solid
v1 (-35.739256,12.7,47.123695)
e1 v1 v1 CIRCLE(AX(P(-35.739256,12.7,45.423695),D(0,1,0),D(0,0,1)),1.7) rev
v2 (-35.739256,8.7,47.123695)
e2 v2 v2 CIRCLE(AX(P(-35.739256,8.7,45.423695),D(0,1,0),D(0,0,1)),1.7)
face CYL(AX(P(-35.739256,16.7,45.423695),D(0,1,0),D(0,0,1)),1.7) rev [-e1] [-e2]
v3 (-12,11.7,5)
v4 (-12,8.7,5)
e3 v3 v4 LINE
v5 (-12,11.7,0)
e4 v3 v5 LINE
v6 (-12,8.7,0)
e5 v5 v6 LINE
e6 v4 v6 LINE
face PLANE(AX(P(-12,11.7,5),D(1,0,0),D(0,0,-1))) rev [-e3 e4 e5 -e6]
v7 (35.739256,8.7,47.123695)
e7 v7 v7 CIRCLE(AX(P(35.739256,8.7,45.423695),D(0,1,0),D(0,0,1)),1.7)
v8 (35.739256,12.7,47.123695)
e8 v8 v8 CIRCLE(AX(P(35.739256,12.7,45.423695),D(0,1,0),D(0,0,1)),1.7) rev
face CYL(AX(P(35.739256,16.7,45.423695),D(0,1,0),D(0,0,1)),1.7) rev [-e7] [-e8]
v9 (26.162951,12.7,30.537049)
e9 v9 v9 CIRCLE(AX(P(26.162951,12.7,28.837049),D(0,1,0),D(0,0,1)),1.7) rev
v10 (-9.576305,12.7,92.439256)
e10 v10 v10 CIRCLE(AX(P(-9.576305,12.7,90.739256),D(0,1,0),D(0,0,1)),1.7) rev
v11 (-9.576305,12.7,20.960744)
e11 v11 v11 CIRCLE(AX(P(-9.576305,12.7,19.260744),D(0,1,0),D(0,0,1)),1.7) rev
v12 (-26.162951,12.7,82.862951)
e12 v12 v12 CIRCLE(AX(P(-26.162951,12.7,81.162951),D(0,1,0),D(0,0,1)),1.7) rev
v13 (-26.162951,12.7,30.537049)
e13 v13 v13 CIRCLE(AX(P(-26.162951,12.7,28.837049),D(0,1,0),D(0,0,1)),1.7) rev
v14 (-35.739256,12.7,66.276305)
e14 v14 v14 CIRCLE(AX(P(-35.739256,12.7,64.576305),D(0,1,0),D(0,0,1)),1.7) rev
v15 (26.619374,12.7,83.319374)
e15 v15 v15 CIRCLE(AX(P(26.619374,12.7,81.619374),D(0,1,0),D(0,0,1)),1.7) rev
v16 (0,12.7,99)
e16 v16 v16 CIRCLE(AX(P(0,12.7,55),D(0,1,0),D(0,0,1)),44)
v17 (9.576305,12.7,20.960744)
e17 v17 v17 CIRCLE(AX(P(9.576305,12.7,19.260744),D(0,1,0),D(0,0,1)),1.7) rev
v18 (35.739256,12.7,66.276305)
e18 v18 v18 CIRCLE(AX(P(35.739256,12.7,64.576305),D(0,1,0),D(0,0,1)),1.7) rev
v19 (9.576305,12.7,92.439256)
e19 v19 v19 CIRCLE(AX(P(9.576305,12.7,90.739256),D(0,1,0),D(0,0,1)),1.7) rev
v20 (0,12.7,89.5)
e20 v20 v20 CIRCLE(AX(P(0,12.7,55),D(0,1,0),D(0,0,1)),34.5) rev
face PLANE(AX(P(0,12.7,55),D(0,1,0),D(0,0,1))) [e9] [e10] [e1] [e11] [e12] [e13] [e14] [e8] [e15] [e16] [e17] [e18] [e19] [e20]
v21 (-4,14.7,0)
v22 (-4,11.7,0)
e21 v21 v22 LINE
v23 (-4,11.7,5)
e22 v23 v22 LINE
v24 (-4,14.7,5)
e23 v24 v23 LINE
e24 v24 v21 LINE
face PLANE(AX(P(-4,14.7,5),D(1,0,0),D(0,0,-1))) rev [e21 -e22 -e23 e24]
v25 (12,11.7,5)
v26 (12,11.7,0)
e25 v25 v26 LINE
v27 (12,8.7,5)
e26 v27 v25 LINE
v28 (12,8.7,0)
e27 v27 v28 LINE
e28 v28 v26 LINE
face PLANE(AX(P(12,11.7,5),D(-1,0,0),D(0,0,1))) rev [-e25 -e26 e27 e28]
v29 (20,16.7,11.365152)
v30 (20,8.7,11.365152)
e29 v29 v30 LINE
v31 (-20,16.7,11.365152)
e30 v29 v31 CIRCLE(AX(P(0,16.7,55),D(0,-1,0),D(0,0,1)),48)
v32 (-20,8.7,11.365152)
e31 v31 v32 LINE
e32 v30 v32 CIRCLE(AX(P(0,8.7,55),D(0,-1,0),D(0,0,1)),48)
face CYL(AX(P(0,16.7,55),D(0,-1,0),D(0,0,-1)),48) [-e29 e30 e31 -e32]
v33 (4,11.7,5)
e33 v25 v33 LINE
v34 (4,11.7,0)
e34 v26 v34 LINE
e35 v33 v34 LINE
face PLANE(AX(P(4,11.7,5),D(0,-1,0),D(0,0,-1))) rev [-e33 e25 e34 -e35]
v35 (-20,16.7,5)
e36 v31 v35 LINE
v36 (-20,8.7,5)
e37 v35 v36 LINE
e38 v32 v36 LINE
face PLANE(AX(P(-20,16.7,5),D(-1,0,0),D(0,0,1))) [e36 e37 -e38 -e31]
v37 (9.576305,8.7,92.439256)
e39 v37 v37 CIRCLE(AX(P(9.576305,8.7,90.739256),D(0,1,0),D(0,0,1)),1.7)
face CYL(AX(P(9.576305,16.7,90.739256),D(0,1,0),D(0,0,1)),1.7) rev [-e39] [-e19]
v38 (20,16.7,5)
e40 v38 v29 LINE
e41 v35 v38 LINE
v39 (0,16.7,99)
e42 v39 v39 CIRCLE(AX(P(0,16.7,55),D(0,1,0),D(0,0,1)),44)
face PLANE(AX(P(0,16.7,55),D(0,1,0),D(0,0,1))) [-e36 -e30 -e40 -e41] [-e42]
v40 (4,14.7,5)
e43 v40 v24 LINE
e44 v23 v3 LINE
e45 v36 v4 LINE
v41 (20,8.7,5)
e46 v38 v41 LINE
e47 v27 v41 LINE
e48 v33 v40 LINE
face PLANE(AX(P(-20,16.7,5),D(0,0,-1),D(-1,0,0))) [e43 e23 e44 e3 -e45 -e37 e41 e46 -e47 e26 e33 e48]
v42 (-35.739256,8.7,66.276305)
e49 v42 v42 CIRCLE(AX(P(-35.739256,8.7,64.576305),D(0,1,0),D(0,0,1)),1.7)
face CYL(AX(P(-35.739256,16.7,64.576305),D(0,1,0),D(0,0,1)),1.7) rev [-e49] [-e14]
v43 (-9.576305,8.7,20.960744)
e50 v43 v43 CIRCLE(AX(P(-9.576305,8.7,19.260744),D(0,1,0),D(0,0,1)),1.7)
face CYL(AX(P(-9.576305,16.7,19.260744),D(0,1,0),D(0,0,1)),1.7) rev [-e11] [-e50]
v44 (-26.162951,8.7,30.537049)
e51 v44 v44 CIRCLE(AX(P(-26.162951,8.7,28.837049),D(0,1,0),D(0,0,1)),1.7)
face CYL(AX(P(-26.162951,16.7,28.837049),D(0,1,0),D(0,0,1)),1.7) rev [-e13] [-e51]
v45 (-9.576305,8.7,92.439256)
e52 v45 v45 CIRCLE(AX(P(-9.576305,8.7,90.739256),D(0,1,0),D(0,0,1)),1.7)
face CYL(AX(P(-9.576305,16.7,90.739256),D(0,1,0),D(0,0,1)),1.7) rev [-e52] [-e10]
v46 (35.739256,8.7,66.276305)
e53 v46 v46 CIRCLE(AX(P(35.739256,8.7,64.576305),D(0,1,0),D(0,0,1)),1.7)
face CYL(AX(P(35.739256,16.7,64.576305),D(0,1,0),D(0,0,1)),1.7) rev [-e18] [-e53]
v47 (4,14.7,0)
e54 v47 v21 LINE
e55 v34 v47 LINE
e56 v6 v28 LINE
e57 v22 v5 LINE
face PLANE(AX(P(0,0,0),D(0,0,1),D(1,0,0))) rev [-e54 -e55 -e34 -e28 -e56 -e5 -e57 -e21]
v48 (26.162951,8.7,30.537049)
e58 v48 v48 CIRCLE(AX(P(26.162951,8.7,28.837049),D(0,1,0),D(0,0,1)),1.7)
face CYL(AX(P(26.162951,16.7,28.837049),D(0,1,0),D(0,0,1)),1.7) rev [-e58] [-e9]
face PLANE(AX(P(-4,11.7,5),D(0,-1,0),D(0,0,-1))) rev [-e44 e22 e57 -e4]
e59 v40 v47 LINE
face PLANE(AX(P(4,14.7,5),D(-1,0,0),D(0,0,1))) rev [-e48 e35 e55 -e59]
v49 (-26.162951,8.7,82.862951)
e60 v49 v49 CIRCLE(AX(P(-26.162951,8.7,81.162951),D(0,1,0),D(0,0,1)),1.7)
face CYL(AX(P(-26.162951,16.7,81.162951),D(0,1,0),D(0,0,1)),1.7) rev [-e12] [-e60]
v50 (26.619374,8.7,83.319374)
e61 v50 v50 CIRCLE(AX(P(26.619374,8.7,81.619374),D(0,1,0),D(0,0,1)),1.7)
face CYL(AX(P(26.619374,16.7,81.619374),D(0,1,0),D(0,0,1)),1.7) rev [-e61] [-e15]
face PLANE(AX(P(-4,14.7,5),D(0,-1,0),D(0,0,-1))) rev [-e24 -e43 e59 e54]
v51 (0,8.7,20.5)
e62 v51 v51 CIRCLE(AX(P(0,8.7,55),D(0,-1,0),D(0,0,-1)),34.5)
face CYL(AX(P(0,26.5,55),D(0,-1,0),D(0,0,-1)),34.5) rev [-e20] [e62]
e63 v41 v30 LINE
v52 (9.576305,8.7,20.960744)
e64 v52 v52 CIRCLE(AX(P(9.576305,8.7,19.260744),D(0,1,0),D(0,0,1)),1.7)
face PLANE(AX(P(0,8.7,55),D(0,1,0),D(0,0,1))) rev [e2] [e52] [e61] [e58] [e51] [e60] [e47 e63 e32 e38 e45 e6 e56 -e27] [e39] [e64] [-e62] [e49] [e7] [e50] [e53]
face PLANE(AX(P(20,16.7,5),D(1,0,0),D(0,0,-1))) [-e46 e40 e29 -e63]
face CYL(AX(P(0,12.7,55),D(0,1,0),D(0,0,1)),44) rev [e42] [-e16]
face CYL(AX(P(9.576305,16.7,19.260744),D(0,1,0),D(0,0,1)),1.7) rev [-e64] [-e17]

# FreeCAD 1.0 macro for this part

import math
import FreeCAD as App
import Part
import Sketcher
from FreeCAD import Vector
Q = App.Units.Quantity


def add_polygon(sketch, points):
    """Adds a closed chain of lines whose ends are joined by coincident constraints."""
    first, n = sketch.GeometryCount, len(points)
    for a, b in zip(points, points[1:] + points[:1]):
        sketch.addGeometry(Part.LineSegment(App.Vector(*a, 0), App.Vector(*b, 0)), False)
    for i in range(n):
        sketch.addConstraint(Sketcher.Constraint("Coincident", first + i, 2, first + (i + 1) % n, 1))

doc = App.newDocument("Part")
params = doc.addObject("Spreadsheet::Sheet", "Params")
for row, (alias, value) in enumerate([
    ("sketch1_diameter", "53 mm"),
    ("pad1_length", "5 mm"),
    ("sketch2_width", "4 mm"),
    ("sketch2_height", "5 mm"),
    ("sketch2_width2", "1.75 mm"),
    ("groove_angle", "360 deg"),
    ("linearpattern_pitch", "39.424389 mm"),
    ("linearpattern2_pitch", "39.424389 mm"),
    ("linearpattern3_pitch", "18.383894 mm"),
    ("linearpattern4_pitch", "43.5 mm"),
    ("linearpattern5_pitch", "39.424389 mm"),
    ("linearpattern6_pitch", "18.383894 mm"),
    ("sketch3_radius", "48 mm"),
    ("sketch3_width", "40 mm"),
    ("pad2_length", "8 mm"),
    ("sketch4_diameter", "69 mm"),
    ("sketch5_diameter", "3.4 mm"),
    ("hole_diameter", "3.4 mm"),
    ("hole_cbore_diameter", "6.5 mm"),
    ("hole_cbore_depth", "3 mm"),
    ("sketch6_diameter", "53 mm"),
    ("sketch6_width", "8 mm"),
    ("sketch6_height", "3 mm"),
    ("pocket2_length", "5 mm"),
    ("sketch7_diameter", "88 mm"),
    ("pocket3_length", "4 mm"),
], start=1):
    params.set(f"A{row}", alias)
    params.set(f"B{row}", "=" + value)
    params.setAlias(f"B{row}", alias)

body = doc.addObject("PartDesign::Body", "Body")

# Sketch on XY plane
sketch1 = body.newObject("Sketcher::SketchObject", "Sketch")
sketch1.AttachmentSupport = (doc.getObject("XY_Plane"), [""])
sketch1.MapMode = "FlatFace"
sketch1.addGeometry(Part.Circle(Vector(0, 0, 0), Vector(0, 0, 1), 26), False)
sketch1.addConstraint([
    Sketcher.Constraint("Coincident", 0, 3, -1, 1),
    Sketcher.Constraint("Diameter", 0, Q("53 mm")),
])
sketch1.setExpression("Constraints[1]", "Params.sketch1_diameter")
pad1 = body.newObject("PartDesign::Pad", "Pad")
pad1.Profile = sketch1
pad1.setExpression("Length", "Params.pad1_length")

# Sketch on YZ plane
sketch2 = body.newObject("Sketcher::SketchObject", "Sketch001")
sketch2.AttachmentSupport = (doc.getObject("YZ_Plane"), [""])
sketch2.MapMode = "FlatFace"
sketch2.AttachmentOffset = App.Placement(Vector(0, 0, 21.75), App.Rotation())
add_polygon(sketch2, [(0, 0), (0, 5), (-4, 5), (-4, 1), (-2.2, 1), (-2.2, 0)])  # lines 0-5
sketch2.addConstraint([
    Sketcher.Constraint("Vertical", 0),
    Sketcher.Constraint("Horizontal", 1),
    Sketcher.Constraint("Vertical", 2),
    Sketcher.Constraint("Horizontal", 3),
    Sketcher.Constraint("Vertical", 4),
    Sketcher.Constraint("Horizontal", 5),
    Sketcher.Constraint("Coincident", 5, 2, -1, 1),
    Sketcher.Constraint("Equal", 1, 2),
    Sketcher.Constraint("DistanceX", 1, 2, 1, 1, Q("4 mm")),
    Sketcher.Constraint("DistanceY", 0, 1, 0, 2, Q("5 mm")),
    Sketcher.Constraint("DistanceX", 3, 1, 3, 2, Q("1.75 mm")),
])
sketch2.setExpression("Constraints[14]", "Params.sketch2_width")
sketch2.setExpression("Constraints[15]", "Params.sketch2_height")
sketch2.setExpression("Constraints[16]", "Params.sketch2_width2")
groove = body.newObject("PartDesign::Groove", "Groove")
groove.Profile = sketch2
groove.ReferenceAxis = (sketch2, ["V_Axis"])
groove.setExpression("Angle", "Params.groove_angle")
doc.recompute()

datumline = body.newObject("PartDesign::Line", "DatumLine")
datumline.Placement = App.Placement(Vector(0, 0, 0), App.Rotation(Vector(0, 0, 1), Vector(-0.906307787, 0.422618262, 0)))
linearpattern = body.newObject("PartDesign::LinearPattern", "LinearPattern")
linearpattern.Originals = [groove]
linearpattern.Direction = (datumline, [""])
linearpattern.Mode = "offset"
linearpattern.setExpression("Offset", "Params.linearpattern_pitch")
linearpattern.Occurrences = 2
body.Tip = linearpattern
doc.recompute()

datumline2 = body.newObject("PartDesign::Line", "DatumLine001")
datumline2.Placement = App.Placement(Vector(0, 0, 0), App.Rotation(Vector(0, 0, 1), Vector(-0.906307787, 0.422618262, 0)))
linearpattern2 = body.newObject("PartDesign::LinearPattern", "LinearPattern001")
linearpattern2.Originals = [groove]
linearpattern2.Direction = (datumline2, [""])
linearpattern2.Mode = "offset"
linearpattern2.setExpression("Offset", "Params.linearpattern2_pitch")
linearpattern2.Occurrences = 2
body.Tip = linearpattern2
doc.recompute()

datumline3 = body.newObject("PartDesign::Line", "DatumLine002")
datumline3.Placement = App.Placement(Vector(0, 0, 0), App.Rotation(Vector(0, 0, 1), Vector(-0.422618262, 0.906307787, 0)))
linearpattern3 = body.newObject("PartDesign::LinearPattern", "LinearPattern002")
linearpattern3.Originals = [groove]
linearpattern3.Direction = (datumline3, [""])
linearpattern3.Mode = "offset"
linearpattern3.setExpression("Offset", "Params.linearpattern3_pitch")
linearpattern3.Occurrences = 2
body.Tip = linearpattern3
doc.recompute()

linearpattern4 = body.newObject("PartDesign::LinearPattern", "LinearPattern003")
linearpattern4.Originals = [groove]
linearpattern4.Direction = (doc.getObject("X_Axis"), [""])
linearpattern4.Mode = "offset"
linearpattern4.setExpression("Offset", "Params.linearpattern4_pitch")
linearpattern4.Occurrences = 2
linearpattern4.Reversed = True
body.Tip = linearpattern4
doc.recompute()

datumline4 = body.newObject("PartDesign::Line", "DatumLine003")
datumline4.Placement = App.Placement(Vector(0, 0, 0), App.Rotation(Vector(0, 0, 1), Vector(-0.906307787, -0.422618262, 0)))
linearpattern5 = body.newObject("PartDesign::LinearPattern", "LinearPattern004")
linearpattern5.Originals = [groove]
linearpattern5.Direction = (datumline4, [""])
linearpattern5.Mode = "offset"
linearpattern5.setExpression("Offset", "Params.linearpattern5_pitch")
linearpattern5.Occurrences = 2
body.Tip = linearpattern5
doc.recompute()

datumline5 = body.newObject("PartDesign::Line", "DatumLine004")
datumline5.Placement = App.Placement(Vector(0, 0, 0), App.Rotation(Vector(0, 0, 1), Vector(-0.422618262, -0.906307787, 0)))
linearpattern6 = body.newObject("PartDesign::LinearPattern", "LinearPattern005")
linearpattern6.Originals = [groove]
linearpattern6.Direction = (datumline5, [""])
linearpattern6.Mode = "offset"
linearpattern6.setExpression("Offset", "Params.linearpattern6_pitch")
linearpattern6.Occurrences = 2
body.Tip = linearpattern6

# Sketch on XZ plane
sketch3 = body.newObject("Sketcher::SketchObject", "Sketch002")
sketch3.AttachmentSupport = (doc.getObject("XZ_Plane"), [""])
sketch3.MapMode = "FlatFace"
sketch3.AttachmentOffset = App.Placement(Vector(0, 0, -8.7), App.Rotation())
sketch3.addGeometry([
    Part.LineSegment(Vector(-20, 11, 0), Vector(-20, 5, 0)),
    Part.LineSegment(Vector(-20, 5, 0), Vector(20, 5, 0)),
    Part.LineSegment(Vector(20, 5, 0), Vector(20, 11, 0)),
    Part.ArcOfCircle(Part.Circle(Vector(0, 55, 0), Vector(0, 0, 1), 48), math.radians(-65), math.radians(245)),
], False)
sketch3.addConstraint([
    Sketcher.Constraint("Coincident", 0, 2, 1, 1),
    Sketcher.Constraint("Coincident", 1, 2, 2, 1),
    Sketcher.Constraint("Coincident", 2, 2, 3, 1),
    Sketcher.Constraint("Coincident", 3, 2, 0, 1),
    Sketcher.Constraint("Vertical", 0),
    Sketcher.Constraint("Horizontal", 1),
    Sketcher.Constraint("Vertical", 2),
    Sketcher.Constraint("Symmetric", 2, 2, 3, 2, -2),
    Sketcher.Constraint("Radius", 3, Q("48 mm")),
    Sketcher.Constraint("DistanceX", 1, 1, 1, 2, Q("40 mm")),
    Sketcher.Constraint("DistanceY", -1, 1, 3, 3, Q("55 mm")),
    Sketcher.Constraint("DistanceY", -1, 1, 0, 2, Q("5 mm")),
])
sketch3.setExpression("Constraints[8]", "Params.sketch3_radius")
sketch3.setExpression("Constraints[9]", "Params.sketch3_width")
pad2 = body.newObject("PartDesign::Pad", "Pad001")
pad2.Profile = sketch3
pad2.setExpression("Length", "Params.pad2_length")
pad2.Reversed = True

# Sketch on XZ plane
sketch4 = body.newObject("Sketcher::SketchObject", "Sketch003")
sketch4.AttachmentSupport = (doc.getObject("XZ_Plane"), [""])
sketch4.MapMode = "FlatFace"
sketch4.AttachmentOffset = App.Placement(Vector(0, 0, -8.7), App.Rotation())
sketch4.addGeometry(Part.Circle(Vector(0, 55, 0), Vector(0, 0, 1), 34), False)
sketch4.addConstraint([
    Sketcher.Constraint("PointOnObject", 0, 3, -2),
    Sketcher.Constraint("Diameter", 0, Q("69 mm")),
    Sketcher.Constraint("DistanceY", -1, 1, 0, 3, Q("55 mm")),
])
sketch4.setExpression("Constraints[1]", "Params.sketch4_diameter")
pocket1 = body.newObject("PartDesign::Pocket", "Pocket")
pocket1.Profile = sketch4
pocket1.Type = "ThroughAll"

# Sketch on XZ plane
sketch5 = body.newObject("Sketcher::SketchObject", "Sketch004")
sketch5.AttachmentSupport = (doc.getObject("XZ_Plane"), [""])
sketch5.MapMode = "FlatFace"
sketch5.AttachmentOffset = App.Placement(Vector(0, 0, -16.7), App.Rotation())
sketch5.addGeometry([
    Part.Circle(Vector(-9.6, 19.3, 0), Vector(0, 0, 1), 1.7),  # 0
    Part.Circle(Vector(9.6, 19.3, 0), Vector(0, 0, 1), 1.7),  # 1
    Part.Circle(Vector(26.2, 28.8, 0), Vector(0, 0, 1), 1.7),  # 2
    Part.Circle(Vector(35.7, 45.4, 0), Vector(0, 0, 1), 1.7),  # 3
    Part.Circle(Vector(35.7, 64.6, 0), Vector(0, 0, 1), 1.7),  # 4
    Part.Circle(Vector(26.6, 81.6, 0), Vector(0, 0, 1), 1.7),  # 5
    Part.Circle(Vector(9.6, 90.7, 0), Vector(0, 0, 1), 1.7),  # 6
    Part.Circle(Vector(-9.6, 90.7, 0), Vector(0, 0, 1), 1.7),  # 7
    Part.Circle(Vector(-26.2, 81.2, 0), Vector(0, 0, 1), 1.7),  # 8
    Part.Circle(Vector(-26.2, 28.8, 0), Vector(0, 0, 1), 1.7),  # 9
    Part.Circle(Vector(-35.7, 45.4, 0), Vector(0, 0, 1), 1.7),  # 10
    Part.Circle(Vector(-35.7, 64.6, 0), Vector(0, 0, 1), 1.7),  # 11
], False)
sketch5.addConstraint([
    Sketcher.Constraint("Equal", 0, 1),
    Sketcher.Constraint("Equal", 1, 2),
    Sketcher.Constraint("Equal", 2, 3),
    Sketcher.Constraint("Equal", 3, 4),
    Sketcher.Constraint("Equal", 4, 5),
    Sketcher.Constraint("Equal", 5, 6),
    Sketcher.Constraint("Equal", 6, 7),
    Sketcher.Constraint("Equal", 7, 8),
    Sketcher.Constraint("Equal", 8, 9),
    Sketcher.Constraint("Equal", 9, 10),
    Sketcher.Constraint("Equal", 10, 11),
    Sketcher.Constraint("Symmetric", 0, 3, 1, 3, -2),
    Sketcher.Constraint("Symmetric", 6, 3, 7, 3, -2),
    Sketcher.Constraint("Symmetric", 2, 3, 9, 3, -2),
    Sketcher.Constraint("Symmetric", 3, 3, 10, 3, -2),
    Sketcher.Constraint("Symmetric", 4, 3, 11, 3, -2),
    Sketcher.Constraint("Vertical", 3, 3, 4, 3),
    Sketcher.Constraint("Vertical", 1, 3, 6, 3),
    Sketcher.Constraint("Vertical", 8, 3, 9, 3),
    Sketcher.Constraint("Diameter", 0, Q("3.4 mm")),
    Sketcher.Constraint("DistanceX", 9, 3, 2, 3, Q("52.325902 mm")),
    Sketcher.Constraint("DistanceY", 9, 3, 8, 3, Q("52.325902 mm")),
    Sketcher.Constraint("DistanceY", -1, 1, 2, 3, Q("28.837049 mm")),
    Sketcher.Constraint("DistanceX", 0, 3, 1, 3, Q("19.152609 mm")),
    Sketcher.Constraint("DistanceX", 1, 3, 3, 3, Q("26.162951 mm")),
    Sketcher.Constraint("DistanceY", 1, 3, 3, 3, Q("26.162951 mm")),
    Sketcher.Constraint("DistanceY", 3, 3, 4, 3, Q("19.152609 mm")),
    Sketcher.Constraint("DistanceX", 5, 3, 4, 3, Q("9.119882 mm")),
    Sketcher.Constraint("DistanceY", 4, 3, 5, 3, Q("17.043069 mm")),
    Sketcher.Constraint("DistanceY", 5, 3, 6, 3, Q("9.119882 mm")),
    Sketcher.Constraint("DistanceY", -1, 1, 0, 3, Q("19.260744 mm")),
])
sketch5.setExpression("Constraints[19]", "Params.sketch5_diameter")
doc.recompute()
hole = body.newObject("PartDesign::Hole", "Hole")
hole.Profile = sketch5
hole.ThreadType = "None"
hole.setExpression("Diameter", "Params.hole_diameter")
hole.DepthType = "ThroughAll"
hole.HoleCutType = "Counterbore"
hole.setExpression("HoleCutDiameter", "Params.hole_cbore_diameter")
hole.setExpression("HoleCutDepth", "Params.hole_cbore_depth")
hole.Reversed = True

# Sketch on XY plane
sketch6 = body.newObject("Sketcher::SketchObject", "Sketch005")
sketch6.AttachmentSupport = (doc.getObject("XY_Plane"), [""])
sketch6.MapMode = "FlatFace"
sketch6.addGeometry(Part.Circle(Vector(0, 0, 0), Vector(0, 0, 1), 26.5), False)  # 0
add_polygon(sketch6, [(-4, 11.7), (-4, 14.7), (4, 14.7), (4, 11.7), (12, 11.7), (12, 8.7), (-12, 8.7), (-12, 11.7)])  # lines 1-8
sketch6.addConstraint([
    Sketcher.Constraint("Vertical", 1),
    Sketcher.Constraint("Horizontal", 2),
    Sketcher.Constraint("Vertical", 3),
    Sketcher.Constraint("Horizontal", 4),
    Sketcher.Constraint("Vertical", 5),
    Sketcher.Constraint("Horizontal", 6),
    Sketcher.Constraint("Vertical", 7),
    Sketcher.Constraint("Horizontal", 8),
    Sketcher.Constraint("Coincident", 0, 3, -1, 1),
    Sketcher.Constraint("Symmetric", 4, 2, 7, 2, -2),
    Sketcher.Constraint("Equal", 2, 4),
    Sketcher.Constraint("Equal", 4, 8),
    Sketcher.Constraint("Equal", 3, 5),
    Sketcher.Constraint("Diameter", 0, Q("53 mm")),
    Sketcher.Constraint("DistanceX", 2, 1, 2, 2, Q("8 mm")),
    Sketcher.Constraint("DistanceY", 1, 1, 1, 2, Q("3 mm")),
    Sketcher.Constraint("DistanceY", -1, 1, 1, 2, Q("14.7 mm")),
])
sketch6.setExpression("Constraints[21]", "Params.sketch6_diameter")
sketch6.setExpression("Constraints[22]", "Params.sketch6_width")
sketch6.setExpression("Constraints[23]", "Params.sketch6_height")
pocket2 = body.newObject("PartDesign::Pocket", "Pocket001")
pocket2.Profile = sketch6
pocket2.setExpression("Length", "Params.pocket2_length")
pocket2.Reversed = True

# Sketch on XZ plane
sketch7 = body.newObject("Sketcher::SketchObject", "Sketch006")
sketch7.AttachmentSupport = (doc.getObject("XZ_Plane"), [""])
sketch7.MapMode = "FlatFace"
sketch7.AttachmentOffset = App.Placement(Vector(0, 0, -16.7), App.Rotation())
sketch7.addGeometry(Part.Circle(Vector(0, 55, 0), Vector(0, 0, 1), 44), False)
sketch7.addConstraint([
    Sketcher.Constraint("PointOnObject", 0, 3, -2),
    Sketcher.Constraint("Diameter", 0, Q("88 mm")),
    Sketcher.Constraint("DistanceY", -1, 1, 0, 3, Q("55 mm")),
])
sketch7.setExpression("Constraints[1]", "Params.sketch7_diameter")
pocket3 = body.newObject("PartDesign::Pocket", "Pocket002")
pocket3.Profile = sketch7
pocket3.setExpression("Length", "Params.pocket3_length")
pocket3.Reversed = True

doc.recompute()
